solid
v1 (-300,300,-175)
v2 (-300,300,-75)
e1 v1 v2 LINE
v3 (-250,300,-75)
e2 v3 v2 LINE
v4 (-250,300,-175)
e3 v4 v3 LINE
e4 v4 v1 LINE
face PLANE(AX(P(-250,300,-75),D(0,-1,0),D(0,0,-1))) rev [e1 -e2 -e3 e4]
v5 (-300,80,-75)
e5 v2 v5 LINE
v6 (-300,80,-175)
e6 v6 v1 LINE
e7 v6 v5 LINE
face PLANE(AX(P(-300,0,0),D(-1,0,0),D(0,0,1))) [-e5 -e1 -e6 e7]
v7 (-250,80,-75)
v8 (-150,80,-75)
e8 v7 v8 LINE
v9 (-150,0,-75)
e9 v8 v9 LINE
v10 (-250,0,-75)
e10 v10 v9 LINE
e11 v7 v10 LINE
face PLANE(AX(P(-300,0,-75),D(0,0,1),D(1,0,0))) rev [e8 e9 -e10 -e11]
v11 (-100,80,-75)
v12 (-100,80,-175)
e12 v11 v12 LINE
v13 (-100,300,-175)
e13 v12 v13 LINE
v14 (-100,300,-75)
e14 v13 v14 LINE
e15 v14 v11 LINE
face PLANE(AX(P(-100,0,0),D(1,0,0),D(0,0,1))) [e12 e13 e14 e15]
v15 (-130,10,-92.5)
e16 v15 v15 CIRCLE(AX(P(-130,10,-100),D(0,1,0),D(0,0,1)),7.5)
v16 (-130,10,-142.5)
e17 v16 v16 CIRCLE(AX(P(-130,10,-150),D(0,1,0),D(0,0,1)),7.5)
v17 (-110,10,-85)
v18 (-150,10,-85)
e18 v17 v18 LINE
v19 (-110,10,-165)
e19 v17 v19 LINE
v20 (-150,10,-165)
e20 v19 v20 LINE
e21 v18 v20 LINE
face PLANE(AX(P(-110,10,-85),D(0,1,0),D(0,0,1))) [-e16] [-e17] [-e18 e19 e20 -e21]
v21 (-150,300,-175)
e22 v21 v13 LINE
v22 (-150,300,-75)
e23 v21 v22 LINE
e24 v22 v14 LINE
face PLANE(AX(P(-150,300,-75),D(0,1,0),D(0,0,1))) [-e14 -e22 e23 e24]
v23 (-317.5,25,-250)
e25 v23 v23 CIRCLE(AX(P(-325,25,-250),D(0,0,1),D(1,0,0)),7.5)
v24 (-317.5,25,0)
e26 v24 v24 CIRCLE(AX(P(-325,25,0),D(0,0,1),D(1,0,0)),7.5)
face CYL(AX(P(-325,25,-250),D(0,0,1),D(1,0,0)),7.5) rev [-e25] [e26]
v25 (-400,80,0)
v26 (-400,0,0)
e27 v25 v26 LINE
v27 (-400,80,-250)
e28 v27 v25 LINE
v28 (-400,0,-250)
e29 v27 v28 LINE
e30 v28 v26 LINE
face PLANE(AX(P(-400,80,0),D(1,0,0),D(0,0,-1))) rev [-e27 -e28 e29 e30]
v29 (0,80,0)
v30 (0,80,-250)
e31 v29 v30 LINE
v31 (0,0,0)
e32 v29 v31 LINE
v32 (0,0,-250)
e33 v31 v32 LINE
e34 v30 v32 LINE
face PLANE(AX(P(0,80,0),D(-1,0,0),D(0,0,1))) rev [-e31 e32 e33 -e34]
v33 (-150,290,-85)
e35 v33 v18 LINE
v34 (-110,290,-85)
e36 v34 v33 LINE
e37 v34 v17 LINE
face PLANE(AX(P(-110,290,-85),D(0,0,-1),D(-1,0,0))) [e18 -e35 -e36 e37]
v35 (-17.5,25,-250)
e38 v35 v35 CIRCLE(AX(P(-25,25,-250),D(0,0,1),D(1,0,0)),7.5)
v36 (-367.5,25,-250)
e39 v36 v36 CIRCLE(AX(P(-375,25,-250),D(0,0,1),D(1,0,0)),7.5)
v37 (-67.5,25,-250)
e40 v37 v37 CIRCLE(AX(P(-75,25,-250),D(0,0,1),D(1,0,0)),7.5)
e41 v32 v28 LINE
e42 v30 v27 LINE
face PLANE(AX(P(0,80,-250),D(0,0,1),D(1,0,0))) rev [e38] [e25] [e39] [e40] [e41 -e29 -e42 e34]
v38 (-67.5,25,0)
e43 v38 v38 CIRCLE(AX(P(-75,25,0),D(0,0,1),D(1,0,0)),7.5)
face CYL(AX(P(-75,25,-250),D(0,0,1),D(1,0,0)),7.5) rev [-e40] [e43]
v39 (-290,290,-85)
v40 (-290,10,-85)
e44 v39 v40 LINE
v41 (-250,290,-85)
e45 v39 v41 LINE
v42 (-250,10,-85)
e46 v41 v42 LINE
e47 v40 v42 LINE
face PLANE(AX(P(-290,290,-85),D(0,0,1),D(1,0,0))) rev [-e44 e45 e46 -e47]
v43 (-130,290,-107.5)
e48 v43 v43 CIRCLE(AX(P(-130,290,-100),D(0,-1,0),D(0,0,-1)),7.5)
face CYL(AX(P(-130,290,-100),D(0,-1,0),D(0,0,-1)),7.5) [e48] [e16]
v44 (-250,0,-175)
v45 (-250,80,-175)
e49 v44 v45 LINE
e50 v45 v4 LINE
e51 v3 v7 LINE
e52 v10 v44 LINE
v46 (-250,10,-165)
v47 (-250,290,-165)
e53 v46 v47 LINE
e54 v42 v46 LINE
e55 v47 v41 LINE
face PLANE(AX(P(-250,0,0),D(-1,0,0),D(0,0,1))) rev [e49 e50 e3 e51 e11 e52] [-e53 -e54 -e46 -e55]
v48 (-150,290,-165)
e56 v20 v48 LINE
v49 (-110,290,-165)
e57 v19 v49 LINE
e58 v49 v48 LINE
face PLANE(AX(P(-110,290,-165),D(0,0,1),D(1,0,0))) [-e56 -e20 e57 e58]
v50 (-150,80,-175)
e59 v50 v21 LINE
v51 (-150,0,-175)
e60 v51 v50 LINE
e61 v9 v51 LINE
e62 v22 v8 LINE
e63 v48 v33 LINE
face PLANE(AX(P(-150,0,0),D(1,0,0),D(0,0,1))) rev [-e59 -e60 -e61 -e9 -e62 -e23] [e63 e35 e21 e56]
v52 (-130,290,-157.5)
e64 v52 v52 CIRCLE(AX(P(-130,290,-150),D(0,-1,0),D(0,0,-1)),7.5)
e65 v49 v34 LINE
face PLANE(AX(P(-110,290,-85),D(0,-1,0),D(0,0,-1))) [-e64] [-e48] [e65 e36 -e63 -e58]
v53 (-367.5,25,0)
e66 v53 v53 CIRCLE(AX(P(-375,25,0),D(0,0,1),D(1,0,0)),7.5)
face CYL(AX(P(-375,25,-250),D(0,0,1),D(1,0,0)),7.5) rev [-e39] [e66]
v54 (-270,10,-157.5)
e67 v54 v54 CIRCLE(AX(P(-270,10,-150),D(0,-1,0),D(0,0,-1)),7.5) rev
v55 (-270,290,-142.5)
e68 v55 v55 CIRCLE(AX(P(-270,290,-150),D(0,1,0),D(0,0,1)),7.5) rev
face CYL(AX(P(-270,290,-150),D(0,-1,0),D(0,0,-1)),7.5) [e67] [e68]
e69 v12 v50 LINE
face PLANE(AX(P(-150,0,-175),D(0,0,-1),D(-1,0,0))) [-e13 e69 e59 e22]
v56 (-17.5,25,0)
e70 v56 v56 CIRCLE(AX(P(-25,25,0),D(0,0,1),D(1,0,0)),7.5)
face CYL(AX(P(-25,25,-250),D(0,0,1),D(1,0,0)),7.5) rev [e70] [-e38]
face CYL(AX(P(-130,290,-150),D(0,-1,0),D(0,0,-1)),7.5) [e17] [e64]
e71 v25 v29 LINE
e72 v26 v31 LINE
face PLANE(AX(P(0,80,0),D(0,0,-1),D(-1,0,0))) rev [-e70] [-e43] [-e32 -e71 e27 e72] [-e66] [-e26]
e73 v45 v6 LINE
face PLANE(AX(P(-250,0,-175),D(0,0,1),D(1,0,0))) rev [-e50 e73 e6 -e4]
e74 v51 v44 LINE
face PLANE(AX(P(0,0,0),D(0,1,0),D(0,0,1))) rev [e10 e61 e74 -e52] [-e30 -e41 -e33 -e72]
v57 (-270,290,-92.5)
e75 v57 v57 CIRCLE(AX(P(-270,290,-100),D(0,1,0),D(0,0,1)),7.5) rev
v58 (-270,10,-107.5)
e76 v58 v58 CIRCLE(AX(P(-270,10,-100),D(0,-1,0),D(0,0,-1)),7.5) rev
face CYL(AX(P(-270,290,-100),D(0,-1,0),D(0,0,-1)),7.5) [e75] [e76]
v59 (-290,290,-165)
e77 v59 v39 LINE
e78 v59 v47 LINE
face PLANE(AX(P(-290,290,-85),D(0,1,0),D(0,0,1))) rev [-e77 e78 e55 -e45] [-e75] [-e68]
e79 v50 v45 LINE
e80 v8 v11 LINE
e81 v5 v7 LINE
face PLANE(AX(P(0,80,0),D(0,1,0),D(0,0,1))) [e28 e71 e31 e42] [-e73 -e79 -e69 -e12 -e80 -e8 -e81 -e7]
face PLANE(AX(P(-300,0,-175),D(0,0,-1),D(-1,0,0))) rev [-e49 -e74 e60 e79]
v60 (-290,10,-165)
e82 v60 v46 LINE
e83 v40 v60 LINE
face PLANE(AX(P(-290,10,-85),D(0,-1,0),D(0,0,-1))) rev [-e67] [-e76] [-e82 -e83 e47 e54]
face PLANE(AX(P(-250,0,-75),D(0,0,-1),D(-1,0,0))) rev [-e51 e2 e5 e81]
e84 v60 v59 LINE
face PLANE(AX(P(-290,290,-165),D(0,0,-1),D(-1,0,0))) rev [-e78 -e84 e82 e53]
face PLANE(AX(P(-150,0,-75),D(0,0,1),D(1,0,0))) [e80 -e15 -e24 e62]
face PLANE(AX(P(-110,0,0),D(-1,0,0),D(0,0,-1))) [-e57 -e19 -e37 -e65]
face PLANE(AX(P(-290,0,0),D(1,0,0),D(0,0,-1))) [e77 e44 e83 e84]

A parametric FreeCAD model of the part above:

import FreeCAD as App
import Part
import Sketcher
from FreeCAD import Vector
Q = App.Units.Quantity

doc = App.newDocument("Part")
body = doc.addObject("PartDesign::Body", "Body")

sketch1 = body.newObject("Sketcher::SketchObject", "Sketch")
sketch1.AttachmentSupport = (doc.getObject("XZ_Plane"), [""])
sketch1.MapMode = "FlatFace"
sketch1.addGeometry([
    Part.LineSegment(Vector(-400, -250, 0), Vector(-400, 0, 0)),
    Part.LineSegment(Vector(-400, 0, 0), Vector(0, 0, 0)),
    Part.LineSegment(Vector(0, 0, 0), Vector(0, -250, 0)),
    Part.LineSegment(Vector(0, -250, 0), Vector(-400, -250, 0)),
], False)
sketch1.addConstraint([
    Sketcher.Constraint("Coincident", 0, 2, 1, 1),
    Sketcher.Constraint("Coincident", 1, 2, 2, 1),
    Sketcher.Constraint("Coincident", 2, 2, 3, 1),
    Sketcher.Constraint("Coincident", 3, 2, 0, 1),
    Sketcher.Constraint("Vertical", 0),
    Sketcher.Constraint("Horizontal", 1),
    Sketcher.Constraint("Vertical", 2),
    Sketcher.Constraint("Horizontal", 3),
    Sketcher.Constraint("Coincident", 1, 2, -1, 1),
    Sketcher.Constraint("DistanceX", 1, 1, 1, 2, Q("400 mm")),
    Sketcher.Constraint("DistanceY", 0, 1, 0, 2, Q("250 mm")),
])
pad1 = body.newObject("PartDesign::Pad", "Pad")
pad1.Profile = sketch1
pad1.Length = 80
pad1.Reversed = True

sketch2 = body.newObject("Sketcher::SketchObject", "Sketch001")
sketch2.AttachmentSupport = (doc.getObject("XY_Plane"), [""])
sketch2.MapMode = "FlatFace"
sketch2.addGeometry([
    Part.Circle(Vector(-375, 25, 0), Vector(0, 0, 1), 8),
    Part.Circle(Vector(-325, 25, 0), Vector(0, 0, 1), 8),
    Part.Circle(Vector(-75, 25, 0), Vector(0, 0, 1), 8),
    Part.Circle(Vector(-25, 25, 0), Vector(0, 0, 1), 8),
], False)
sketch2.addConstraint([
    Sketcher.Constraint("Equal", 0, 1),
    Sketcher.Constraint("Equal", 1, 2),
    Sketcher.Constraint("Equal", 2, 3),
    Sketcher.Constraint("Horizontal", 0, 3, 1, 3),
    Sketcher.Constraint("Horizontal", 1, 3, 2, 3),
    Sketcher.Constraint("Horizontal", 2, 3, 3, 3),
    Sketcher.Constraint("Diameter", 0, Q("15 mm")),
    Sketcher.Constraint("DistanceX", 0, 3, -1, 1, Q("375 mm")),
    Sketcher.Constraint("DistanceY", -1, 1, 0, 3, Q("25 mm")),
    Sketcher.Constraint("DistanceX", 1, 3, -1, 1, Q("325 mm")),
    Sketcher.Constraint("DistanceX", 2, 3, -1, 1, Q("75 mm")),
    Sketcher.Constraint("DistanceX", 3, 3, -1, 1, Q("25 mm")),
])
pocket1 = body.newObject("PartDesign::Pocket", "Pocket")
pocket1.Profile = sketch2
pocket1.Type = "ThroughAll"

sketch3 = body.newObject("Sketcher::SketchObject", "Sketch002")
sketch3.AttachmentSupport = (doc.getObject("XZ_Plane"), [""])
sketch3.MapMode = "FlatFace"
sketch3.AttachmentOffset = App.Placement(Vector(0, 0, -80), App.Rotation())
sketch3.addGeometry([
    Part.LineSegment(Vector(-300, -175, 0), Vector(-300, -75, 0)),
    Part.LineSegment(Vector(-300, -75, 0), Vector(-100, -75, 0)),
    Part.LineSegment(Vector(-100, -75, 0), Vector(-100, -175, 0)),
    Part.LineSegment(Vector(-100, -175, 0), Vector(-300, -175, 0)),
], False)
sketch3.addConstraint([
    Sketcher.Constraint("Coincident", 0, 2, 1, 1),
    Sketcher.Constraint("Coincident", 1, 2, 2, 1),
    Sketcher.Constraint("Coincident", 2, 2, 3, 1),
    Sketcher.Constraint("Coincident", 3, 2, 0, 1),
    Sketcher.Constraint("Vertical", 0),
    Sketcher.Constraint("Horizontal", 1),
    Sketcher.Constraint("Vertical", 2),
    Sketcher.Constraint("Horizontal", 3),
    Sketcher.Constraint("DistanceX", 1, 1, 1, 2, Q("200 mm")),
    Sketcher.Constraint("DistanceY", 0, 1, 0, 2, Q("100 mm")),
    Sketcher.Constraint("DistanceX", 0, 2, -1, 1, Q("300 mm")),
    Sketcher.Constraint("DistanceY", 0, 2, -1, 1, Q("75 mm")),
])
pocket2 = body.newObject("PartDesign::Pocket", "Pocket001")
pocket2.Profile = sketch3
pocket2.Type = "ThroughAll"
pocket2.Reversed = True

sketch4 = body.newObject("Sketcher::SketchObject", "Sketch003")
sketch4.AttachmentSupport = (doc.getObject("YZ_Plane"), [""])
sketch4.MapMode = "FlatFace"
sketch4.AttachmentOffset = App.Placement(Vector(0, 0, -300), App.Rotation())
sketch4.addGeometry([
    Part.LineSegment(Vector(300, -75, 0), Vector(0, -75, 0)),
    Part.LineSegment(Vector(0, -75, 0), Vector(0, -175, 0)),
    Part.LineSegment(Vector(0, -175, 0), Vector(300, -175, 0)),
    Part.LineSegment(Vector(300, -175, 0), Vector(300, -75, 0)),
], False)
sketch4.addConstraint([
    Sketcher.Constraint("Coincident", 0, 2, 1, 1),
    Sketcher.Constraint("Coincident", 1, 2, 2, 1),
    Sketcher.Constraint("Coincident", 2, 2, 3, 1),
    Sketcher.Constraint("Coincident", 3, 2, 0, 1),
    Sketcher.Constraint("Horizontal", 0),
    Sketcher.Constraint("Vertical", 1),
    Sketcher.Constraint("Horizontal", 2),
    Sketcher.Constraint("Vertical", 3),
    Sketcher.Constraint("PointOnObject", 0, 2, -2),
    Sketcher.Constraint("DistanceX", 0, 2, 0, 1, Q("300 mm")),
    Sketcher.Constraint("DistanceY", 1, 2, 1, 1, Q("100 mm")),
    Sketcher.Constraint("DistanceY", 0, 2, -1, 1, Q("75 mm")),
])
pad2 = body.newObject("PartDesign::Pad", "Pad001")
pad2.Profile = sketch4
pad2.Length = 50

sketch5 = body.newObject("Sketcher::SketchObject", "Sketch004")
sketch5.AttachmentSupport = (doc.getObject("YZ_Plane"), [""])
sketch5.MapMode = "FlatFace"
sketch5.AttachmentOffset = App.Placement(Vector(0, 0, -250), App.Rotation())
sketch5.addGeometry([
    Part.LineSegment(Vector(290, -85, 0), Vector(10, -85, 0)),
    Part.LineSegment(Vector(10, -85, 0), Vector(10, -165, 0)),
    Part.LineSegment(Vector(10, -165, 0), Vector(290, -165, 0)),
    Part.LineSegment(Vector(290, -165, 0), Vector(290, -85, 0)),
], False)
sketch5.addConstraint([
    Sketcher.Constraint("Coincident", 0, 2, 1, 1),
    Sketcher.Constraint("Coincident", 1, 2, 2, 1),
    Sketcher.Constraint("Coincident", 2, 2, 3, 1),
    Sketcher.Constraint("Coincident", 3, 2, 0, 1),
    Sketcher.Constraint("Horizontal", 0),
    Sketcher.Constraint("Vertical", 1),
    Sketcher.Constraint("Horizontal", 2),
    Sketcher.Constraint("Vertical", 3),
    Sketcher.Constraint("DistanceX", 0, 2, 0, 1, Q("280 mm")),
    Sketcher.Constraint("DistanceY", 1, 2, 1, 1, Q("80 mm")),
    Sketcher.Constraint("DistanceX", -1, 1, 0, 2, Q("10 mm")),
    Sketcher.Constraint("DistanceY", 0, 2, -1, 1, Q("85 mm")),
])
pocket3 = body.newObject("PartDesign::Pocket", "Pocket002")
pocket3.Profile = sketch5
pocket3.Length = 40
doc.recompute()

datumplane = body.newObject("PartDesign::Plane", "DatumPlane")
datumplane.AttachmentSupport = (doc.getObject("YZ_Plane"), [""])
datumplane.MapMode = "FlatFace"
datumplane.AttachmentOffset = App.Placement(Vector(0, 0, -200), App.Rotation())
mirrored = body.newObject("PartDesign::Mirrored", "Mirrored")
mirrored.Originals = [pad2, pocket3]
mirrored.MirrorPlane = (datumplane, [""])
body.Tip = mirrored

sketch6 = body.newObject("Sketcher::SketchObject", "Sketch005")
sketch6.AttachmentSupport = (doc.getObject("XZ_Plane"), [""])
sketch6.MapMode = "FlatFace"
sketch6.AttachmentOffset = App.Placement(Vector(0, 0, -10), App.Rotation())
sketch6.addGeometry([
    Part.Circle(Vector(-270, -150, 0), Vector(0, 0, 1), 8),
    Part.Circle(Vector(-270, -100, 0), Vector(0, 0, 1), 8),
], False)
sketch6.addConstraint([
    Sketcher.Constraint("Equal", 0, 1),
    Sketcher.Constraint("Vertical", 0, 3, 1, 3),
    Sketcher.Constraint("Diameter", 0, Q("15 mm")),
    Sketcher.Constraint("DistanceX", 0, 3, -1, 1, Q("270 mm")),
    Sketcher.Constraint("DistanceY", 0, 3, -1, 1, Q("150 mm")),
    Sketcher.Constraint("DistanceY", 1, 3, -1, 1, Q("100 mm")),
])
pad3 = body.newObject("PartDesign::Pad", "Pad002")
pad3.Profile = sketch6
pad3.Length = 280
pad3.Reversed = True
doc.recompute()

datumplane2 = body.newObject("PartDesign::Plane", "DatumPlane001")
datumplane2.AttachmentSupport = (doc.getObject("YZ_Plane"), [""])
datumplane2.MapMode = "FlatFace"
datumplane2.AttachmentOffset = App.Placement(Vector(0, 0, -200), App.Rotation())
mirrored2 = body.newObject("PartDesign::Mirrored", "Mirrored001")
mirrored2.Originals = [pad3]
mirrored2.MirrorPlane = (datumplane2, [""])
body.Tip = mirrored2

doc.recompute()
